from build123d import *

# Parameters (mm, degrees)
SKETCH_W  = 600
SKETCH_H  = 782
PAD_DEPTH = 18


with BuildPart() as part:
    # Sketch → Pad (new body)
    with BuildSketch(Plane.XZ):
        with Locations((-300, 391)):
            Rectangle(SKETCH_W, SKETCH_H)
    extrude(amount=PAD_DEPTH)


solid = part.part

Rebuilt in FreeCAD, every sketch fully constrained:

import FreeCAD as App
import Part
import Sketcher

V = App.Vector
Q = App.Units.Quantity


def add_polygon(sketch, points):
    """Adds a closed chain of lines whose ends are joined by coincident constraints."""
    first, n = sketch.GeometryCount, len(points)
    for a, b in zip(points, points[1:] + points[:1]):
        sketch.addGeometry(Part.LineSegment(App.Vector(*a, 0), App.Vector(*b, 0)), False)
    for i in range(n):
        sketch.addConstraint(Sketcher.Constraint("Coincident", first + i, 2, first + (i + 1) % n, 1))

doc = App.newDocument("Part")
params = doc.addObject("Spreadsheet::Sheet", "Params")
for row, (alias, value) in enumerate([
    ("sketch1_width", "600 mm"),
    ("sketch1_height", "782 mm"),
    ("pad1_length", "18 mm"),
], start=1):
    params.set(f"A{row}", alias)
    params.set(f"B{row}", "=" + value)
    params.setAlias(f"B{row}", alias)

body = doc.addObject("PartDesign::Body", "Body")

sketch1 = body.newObject("Sketcher::SketchObject", "Sketch")
sketch1.AttachmentSupport = (doc.getObject("XZ_Plane"), [""])
sketch1.MapMode = "FlatFace"
add_polygon(sketch1, [(-600, 782), (-600, 0), (0, 0), (0, 782)])
sketch1.addConstraint([
    Sketcher.Constraint("Vertical", 0),
    Sketcher.Constraint("Horizontal", 1),
    Sketcher.Constraint("Vertical", 2),
    Sketcher.Constraint("Horizontal", 3),
    Sketcher.Constraint("Coincident", 1, 2, -1, 1),
    Sketcher.Constraint("DistanceX", 1, 1, 1, 2, Q("600 mm")),
    Sketcher.Constraint("DistanceY", 0, 2, 0, 1, Q("782 mm")),
])
sketch1.setExpression("Constraints[9]", "Params.sketch1_width")
sketch1.setExpression("Constraints[10]", "Params.sketch1_height")
pad1 = body.newObject("PartDesign::Pad", "Pad")
pad1.Profile = sketch1
pad1.setExpression("Length", "Params.pad1_length")

doc.recompute()
